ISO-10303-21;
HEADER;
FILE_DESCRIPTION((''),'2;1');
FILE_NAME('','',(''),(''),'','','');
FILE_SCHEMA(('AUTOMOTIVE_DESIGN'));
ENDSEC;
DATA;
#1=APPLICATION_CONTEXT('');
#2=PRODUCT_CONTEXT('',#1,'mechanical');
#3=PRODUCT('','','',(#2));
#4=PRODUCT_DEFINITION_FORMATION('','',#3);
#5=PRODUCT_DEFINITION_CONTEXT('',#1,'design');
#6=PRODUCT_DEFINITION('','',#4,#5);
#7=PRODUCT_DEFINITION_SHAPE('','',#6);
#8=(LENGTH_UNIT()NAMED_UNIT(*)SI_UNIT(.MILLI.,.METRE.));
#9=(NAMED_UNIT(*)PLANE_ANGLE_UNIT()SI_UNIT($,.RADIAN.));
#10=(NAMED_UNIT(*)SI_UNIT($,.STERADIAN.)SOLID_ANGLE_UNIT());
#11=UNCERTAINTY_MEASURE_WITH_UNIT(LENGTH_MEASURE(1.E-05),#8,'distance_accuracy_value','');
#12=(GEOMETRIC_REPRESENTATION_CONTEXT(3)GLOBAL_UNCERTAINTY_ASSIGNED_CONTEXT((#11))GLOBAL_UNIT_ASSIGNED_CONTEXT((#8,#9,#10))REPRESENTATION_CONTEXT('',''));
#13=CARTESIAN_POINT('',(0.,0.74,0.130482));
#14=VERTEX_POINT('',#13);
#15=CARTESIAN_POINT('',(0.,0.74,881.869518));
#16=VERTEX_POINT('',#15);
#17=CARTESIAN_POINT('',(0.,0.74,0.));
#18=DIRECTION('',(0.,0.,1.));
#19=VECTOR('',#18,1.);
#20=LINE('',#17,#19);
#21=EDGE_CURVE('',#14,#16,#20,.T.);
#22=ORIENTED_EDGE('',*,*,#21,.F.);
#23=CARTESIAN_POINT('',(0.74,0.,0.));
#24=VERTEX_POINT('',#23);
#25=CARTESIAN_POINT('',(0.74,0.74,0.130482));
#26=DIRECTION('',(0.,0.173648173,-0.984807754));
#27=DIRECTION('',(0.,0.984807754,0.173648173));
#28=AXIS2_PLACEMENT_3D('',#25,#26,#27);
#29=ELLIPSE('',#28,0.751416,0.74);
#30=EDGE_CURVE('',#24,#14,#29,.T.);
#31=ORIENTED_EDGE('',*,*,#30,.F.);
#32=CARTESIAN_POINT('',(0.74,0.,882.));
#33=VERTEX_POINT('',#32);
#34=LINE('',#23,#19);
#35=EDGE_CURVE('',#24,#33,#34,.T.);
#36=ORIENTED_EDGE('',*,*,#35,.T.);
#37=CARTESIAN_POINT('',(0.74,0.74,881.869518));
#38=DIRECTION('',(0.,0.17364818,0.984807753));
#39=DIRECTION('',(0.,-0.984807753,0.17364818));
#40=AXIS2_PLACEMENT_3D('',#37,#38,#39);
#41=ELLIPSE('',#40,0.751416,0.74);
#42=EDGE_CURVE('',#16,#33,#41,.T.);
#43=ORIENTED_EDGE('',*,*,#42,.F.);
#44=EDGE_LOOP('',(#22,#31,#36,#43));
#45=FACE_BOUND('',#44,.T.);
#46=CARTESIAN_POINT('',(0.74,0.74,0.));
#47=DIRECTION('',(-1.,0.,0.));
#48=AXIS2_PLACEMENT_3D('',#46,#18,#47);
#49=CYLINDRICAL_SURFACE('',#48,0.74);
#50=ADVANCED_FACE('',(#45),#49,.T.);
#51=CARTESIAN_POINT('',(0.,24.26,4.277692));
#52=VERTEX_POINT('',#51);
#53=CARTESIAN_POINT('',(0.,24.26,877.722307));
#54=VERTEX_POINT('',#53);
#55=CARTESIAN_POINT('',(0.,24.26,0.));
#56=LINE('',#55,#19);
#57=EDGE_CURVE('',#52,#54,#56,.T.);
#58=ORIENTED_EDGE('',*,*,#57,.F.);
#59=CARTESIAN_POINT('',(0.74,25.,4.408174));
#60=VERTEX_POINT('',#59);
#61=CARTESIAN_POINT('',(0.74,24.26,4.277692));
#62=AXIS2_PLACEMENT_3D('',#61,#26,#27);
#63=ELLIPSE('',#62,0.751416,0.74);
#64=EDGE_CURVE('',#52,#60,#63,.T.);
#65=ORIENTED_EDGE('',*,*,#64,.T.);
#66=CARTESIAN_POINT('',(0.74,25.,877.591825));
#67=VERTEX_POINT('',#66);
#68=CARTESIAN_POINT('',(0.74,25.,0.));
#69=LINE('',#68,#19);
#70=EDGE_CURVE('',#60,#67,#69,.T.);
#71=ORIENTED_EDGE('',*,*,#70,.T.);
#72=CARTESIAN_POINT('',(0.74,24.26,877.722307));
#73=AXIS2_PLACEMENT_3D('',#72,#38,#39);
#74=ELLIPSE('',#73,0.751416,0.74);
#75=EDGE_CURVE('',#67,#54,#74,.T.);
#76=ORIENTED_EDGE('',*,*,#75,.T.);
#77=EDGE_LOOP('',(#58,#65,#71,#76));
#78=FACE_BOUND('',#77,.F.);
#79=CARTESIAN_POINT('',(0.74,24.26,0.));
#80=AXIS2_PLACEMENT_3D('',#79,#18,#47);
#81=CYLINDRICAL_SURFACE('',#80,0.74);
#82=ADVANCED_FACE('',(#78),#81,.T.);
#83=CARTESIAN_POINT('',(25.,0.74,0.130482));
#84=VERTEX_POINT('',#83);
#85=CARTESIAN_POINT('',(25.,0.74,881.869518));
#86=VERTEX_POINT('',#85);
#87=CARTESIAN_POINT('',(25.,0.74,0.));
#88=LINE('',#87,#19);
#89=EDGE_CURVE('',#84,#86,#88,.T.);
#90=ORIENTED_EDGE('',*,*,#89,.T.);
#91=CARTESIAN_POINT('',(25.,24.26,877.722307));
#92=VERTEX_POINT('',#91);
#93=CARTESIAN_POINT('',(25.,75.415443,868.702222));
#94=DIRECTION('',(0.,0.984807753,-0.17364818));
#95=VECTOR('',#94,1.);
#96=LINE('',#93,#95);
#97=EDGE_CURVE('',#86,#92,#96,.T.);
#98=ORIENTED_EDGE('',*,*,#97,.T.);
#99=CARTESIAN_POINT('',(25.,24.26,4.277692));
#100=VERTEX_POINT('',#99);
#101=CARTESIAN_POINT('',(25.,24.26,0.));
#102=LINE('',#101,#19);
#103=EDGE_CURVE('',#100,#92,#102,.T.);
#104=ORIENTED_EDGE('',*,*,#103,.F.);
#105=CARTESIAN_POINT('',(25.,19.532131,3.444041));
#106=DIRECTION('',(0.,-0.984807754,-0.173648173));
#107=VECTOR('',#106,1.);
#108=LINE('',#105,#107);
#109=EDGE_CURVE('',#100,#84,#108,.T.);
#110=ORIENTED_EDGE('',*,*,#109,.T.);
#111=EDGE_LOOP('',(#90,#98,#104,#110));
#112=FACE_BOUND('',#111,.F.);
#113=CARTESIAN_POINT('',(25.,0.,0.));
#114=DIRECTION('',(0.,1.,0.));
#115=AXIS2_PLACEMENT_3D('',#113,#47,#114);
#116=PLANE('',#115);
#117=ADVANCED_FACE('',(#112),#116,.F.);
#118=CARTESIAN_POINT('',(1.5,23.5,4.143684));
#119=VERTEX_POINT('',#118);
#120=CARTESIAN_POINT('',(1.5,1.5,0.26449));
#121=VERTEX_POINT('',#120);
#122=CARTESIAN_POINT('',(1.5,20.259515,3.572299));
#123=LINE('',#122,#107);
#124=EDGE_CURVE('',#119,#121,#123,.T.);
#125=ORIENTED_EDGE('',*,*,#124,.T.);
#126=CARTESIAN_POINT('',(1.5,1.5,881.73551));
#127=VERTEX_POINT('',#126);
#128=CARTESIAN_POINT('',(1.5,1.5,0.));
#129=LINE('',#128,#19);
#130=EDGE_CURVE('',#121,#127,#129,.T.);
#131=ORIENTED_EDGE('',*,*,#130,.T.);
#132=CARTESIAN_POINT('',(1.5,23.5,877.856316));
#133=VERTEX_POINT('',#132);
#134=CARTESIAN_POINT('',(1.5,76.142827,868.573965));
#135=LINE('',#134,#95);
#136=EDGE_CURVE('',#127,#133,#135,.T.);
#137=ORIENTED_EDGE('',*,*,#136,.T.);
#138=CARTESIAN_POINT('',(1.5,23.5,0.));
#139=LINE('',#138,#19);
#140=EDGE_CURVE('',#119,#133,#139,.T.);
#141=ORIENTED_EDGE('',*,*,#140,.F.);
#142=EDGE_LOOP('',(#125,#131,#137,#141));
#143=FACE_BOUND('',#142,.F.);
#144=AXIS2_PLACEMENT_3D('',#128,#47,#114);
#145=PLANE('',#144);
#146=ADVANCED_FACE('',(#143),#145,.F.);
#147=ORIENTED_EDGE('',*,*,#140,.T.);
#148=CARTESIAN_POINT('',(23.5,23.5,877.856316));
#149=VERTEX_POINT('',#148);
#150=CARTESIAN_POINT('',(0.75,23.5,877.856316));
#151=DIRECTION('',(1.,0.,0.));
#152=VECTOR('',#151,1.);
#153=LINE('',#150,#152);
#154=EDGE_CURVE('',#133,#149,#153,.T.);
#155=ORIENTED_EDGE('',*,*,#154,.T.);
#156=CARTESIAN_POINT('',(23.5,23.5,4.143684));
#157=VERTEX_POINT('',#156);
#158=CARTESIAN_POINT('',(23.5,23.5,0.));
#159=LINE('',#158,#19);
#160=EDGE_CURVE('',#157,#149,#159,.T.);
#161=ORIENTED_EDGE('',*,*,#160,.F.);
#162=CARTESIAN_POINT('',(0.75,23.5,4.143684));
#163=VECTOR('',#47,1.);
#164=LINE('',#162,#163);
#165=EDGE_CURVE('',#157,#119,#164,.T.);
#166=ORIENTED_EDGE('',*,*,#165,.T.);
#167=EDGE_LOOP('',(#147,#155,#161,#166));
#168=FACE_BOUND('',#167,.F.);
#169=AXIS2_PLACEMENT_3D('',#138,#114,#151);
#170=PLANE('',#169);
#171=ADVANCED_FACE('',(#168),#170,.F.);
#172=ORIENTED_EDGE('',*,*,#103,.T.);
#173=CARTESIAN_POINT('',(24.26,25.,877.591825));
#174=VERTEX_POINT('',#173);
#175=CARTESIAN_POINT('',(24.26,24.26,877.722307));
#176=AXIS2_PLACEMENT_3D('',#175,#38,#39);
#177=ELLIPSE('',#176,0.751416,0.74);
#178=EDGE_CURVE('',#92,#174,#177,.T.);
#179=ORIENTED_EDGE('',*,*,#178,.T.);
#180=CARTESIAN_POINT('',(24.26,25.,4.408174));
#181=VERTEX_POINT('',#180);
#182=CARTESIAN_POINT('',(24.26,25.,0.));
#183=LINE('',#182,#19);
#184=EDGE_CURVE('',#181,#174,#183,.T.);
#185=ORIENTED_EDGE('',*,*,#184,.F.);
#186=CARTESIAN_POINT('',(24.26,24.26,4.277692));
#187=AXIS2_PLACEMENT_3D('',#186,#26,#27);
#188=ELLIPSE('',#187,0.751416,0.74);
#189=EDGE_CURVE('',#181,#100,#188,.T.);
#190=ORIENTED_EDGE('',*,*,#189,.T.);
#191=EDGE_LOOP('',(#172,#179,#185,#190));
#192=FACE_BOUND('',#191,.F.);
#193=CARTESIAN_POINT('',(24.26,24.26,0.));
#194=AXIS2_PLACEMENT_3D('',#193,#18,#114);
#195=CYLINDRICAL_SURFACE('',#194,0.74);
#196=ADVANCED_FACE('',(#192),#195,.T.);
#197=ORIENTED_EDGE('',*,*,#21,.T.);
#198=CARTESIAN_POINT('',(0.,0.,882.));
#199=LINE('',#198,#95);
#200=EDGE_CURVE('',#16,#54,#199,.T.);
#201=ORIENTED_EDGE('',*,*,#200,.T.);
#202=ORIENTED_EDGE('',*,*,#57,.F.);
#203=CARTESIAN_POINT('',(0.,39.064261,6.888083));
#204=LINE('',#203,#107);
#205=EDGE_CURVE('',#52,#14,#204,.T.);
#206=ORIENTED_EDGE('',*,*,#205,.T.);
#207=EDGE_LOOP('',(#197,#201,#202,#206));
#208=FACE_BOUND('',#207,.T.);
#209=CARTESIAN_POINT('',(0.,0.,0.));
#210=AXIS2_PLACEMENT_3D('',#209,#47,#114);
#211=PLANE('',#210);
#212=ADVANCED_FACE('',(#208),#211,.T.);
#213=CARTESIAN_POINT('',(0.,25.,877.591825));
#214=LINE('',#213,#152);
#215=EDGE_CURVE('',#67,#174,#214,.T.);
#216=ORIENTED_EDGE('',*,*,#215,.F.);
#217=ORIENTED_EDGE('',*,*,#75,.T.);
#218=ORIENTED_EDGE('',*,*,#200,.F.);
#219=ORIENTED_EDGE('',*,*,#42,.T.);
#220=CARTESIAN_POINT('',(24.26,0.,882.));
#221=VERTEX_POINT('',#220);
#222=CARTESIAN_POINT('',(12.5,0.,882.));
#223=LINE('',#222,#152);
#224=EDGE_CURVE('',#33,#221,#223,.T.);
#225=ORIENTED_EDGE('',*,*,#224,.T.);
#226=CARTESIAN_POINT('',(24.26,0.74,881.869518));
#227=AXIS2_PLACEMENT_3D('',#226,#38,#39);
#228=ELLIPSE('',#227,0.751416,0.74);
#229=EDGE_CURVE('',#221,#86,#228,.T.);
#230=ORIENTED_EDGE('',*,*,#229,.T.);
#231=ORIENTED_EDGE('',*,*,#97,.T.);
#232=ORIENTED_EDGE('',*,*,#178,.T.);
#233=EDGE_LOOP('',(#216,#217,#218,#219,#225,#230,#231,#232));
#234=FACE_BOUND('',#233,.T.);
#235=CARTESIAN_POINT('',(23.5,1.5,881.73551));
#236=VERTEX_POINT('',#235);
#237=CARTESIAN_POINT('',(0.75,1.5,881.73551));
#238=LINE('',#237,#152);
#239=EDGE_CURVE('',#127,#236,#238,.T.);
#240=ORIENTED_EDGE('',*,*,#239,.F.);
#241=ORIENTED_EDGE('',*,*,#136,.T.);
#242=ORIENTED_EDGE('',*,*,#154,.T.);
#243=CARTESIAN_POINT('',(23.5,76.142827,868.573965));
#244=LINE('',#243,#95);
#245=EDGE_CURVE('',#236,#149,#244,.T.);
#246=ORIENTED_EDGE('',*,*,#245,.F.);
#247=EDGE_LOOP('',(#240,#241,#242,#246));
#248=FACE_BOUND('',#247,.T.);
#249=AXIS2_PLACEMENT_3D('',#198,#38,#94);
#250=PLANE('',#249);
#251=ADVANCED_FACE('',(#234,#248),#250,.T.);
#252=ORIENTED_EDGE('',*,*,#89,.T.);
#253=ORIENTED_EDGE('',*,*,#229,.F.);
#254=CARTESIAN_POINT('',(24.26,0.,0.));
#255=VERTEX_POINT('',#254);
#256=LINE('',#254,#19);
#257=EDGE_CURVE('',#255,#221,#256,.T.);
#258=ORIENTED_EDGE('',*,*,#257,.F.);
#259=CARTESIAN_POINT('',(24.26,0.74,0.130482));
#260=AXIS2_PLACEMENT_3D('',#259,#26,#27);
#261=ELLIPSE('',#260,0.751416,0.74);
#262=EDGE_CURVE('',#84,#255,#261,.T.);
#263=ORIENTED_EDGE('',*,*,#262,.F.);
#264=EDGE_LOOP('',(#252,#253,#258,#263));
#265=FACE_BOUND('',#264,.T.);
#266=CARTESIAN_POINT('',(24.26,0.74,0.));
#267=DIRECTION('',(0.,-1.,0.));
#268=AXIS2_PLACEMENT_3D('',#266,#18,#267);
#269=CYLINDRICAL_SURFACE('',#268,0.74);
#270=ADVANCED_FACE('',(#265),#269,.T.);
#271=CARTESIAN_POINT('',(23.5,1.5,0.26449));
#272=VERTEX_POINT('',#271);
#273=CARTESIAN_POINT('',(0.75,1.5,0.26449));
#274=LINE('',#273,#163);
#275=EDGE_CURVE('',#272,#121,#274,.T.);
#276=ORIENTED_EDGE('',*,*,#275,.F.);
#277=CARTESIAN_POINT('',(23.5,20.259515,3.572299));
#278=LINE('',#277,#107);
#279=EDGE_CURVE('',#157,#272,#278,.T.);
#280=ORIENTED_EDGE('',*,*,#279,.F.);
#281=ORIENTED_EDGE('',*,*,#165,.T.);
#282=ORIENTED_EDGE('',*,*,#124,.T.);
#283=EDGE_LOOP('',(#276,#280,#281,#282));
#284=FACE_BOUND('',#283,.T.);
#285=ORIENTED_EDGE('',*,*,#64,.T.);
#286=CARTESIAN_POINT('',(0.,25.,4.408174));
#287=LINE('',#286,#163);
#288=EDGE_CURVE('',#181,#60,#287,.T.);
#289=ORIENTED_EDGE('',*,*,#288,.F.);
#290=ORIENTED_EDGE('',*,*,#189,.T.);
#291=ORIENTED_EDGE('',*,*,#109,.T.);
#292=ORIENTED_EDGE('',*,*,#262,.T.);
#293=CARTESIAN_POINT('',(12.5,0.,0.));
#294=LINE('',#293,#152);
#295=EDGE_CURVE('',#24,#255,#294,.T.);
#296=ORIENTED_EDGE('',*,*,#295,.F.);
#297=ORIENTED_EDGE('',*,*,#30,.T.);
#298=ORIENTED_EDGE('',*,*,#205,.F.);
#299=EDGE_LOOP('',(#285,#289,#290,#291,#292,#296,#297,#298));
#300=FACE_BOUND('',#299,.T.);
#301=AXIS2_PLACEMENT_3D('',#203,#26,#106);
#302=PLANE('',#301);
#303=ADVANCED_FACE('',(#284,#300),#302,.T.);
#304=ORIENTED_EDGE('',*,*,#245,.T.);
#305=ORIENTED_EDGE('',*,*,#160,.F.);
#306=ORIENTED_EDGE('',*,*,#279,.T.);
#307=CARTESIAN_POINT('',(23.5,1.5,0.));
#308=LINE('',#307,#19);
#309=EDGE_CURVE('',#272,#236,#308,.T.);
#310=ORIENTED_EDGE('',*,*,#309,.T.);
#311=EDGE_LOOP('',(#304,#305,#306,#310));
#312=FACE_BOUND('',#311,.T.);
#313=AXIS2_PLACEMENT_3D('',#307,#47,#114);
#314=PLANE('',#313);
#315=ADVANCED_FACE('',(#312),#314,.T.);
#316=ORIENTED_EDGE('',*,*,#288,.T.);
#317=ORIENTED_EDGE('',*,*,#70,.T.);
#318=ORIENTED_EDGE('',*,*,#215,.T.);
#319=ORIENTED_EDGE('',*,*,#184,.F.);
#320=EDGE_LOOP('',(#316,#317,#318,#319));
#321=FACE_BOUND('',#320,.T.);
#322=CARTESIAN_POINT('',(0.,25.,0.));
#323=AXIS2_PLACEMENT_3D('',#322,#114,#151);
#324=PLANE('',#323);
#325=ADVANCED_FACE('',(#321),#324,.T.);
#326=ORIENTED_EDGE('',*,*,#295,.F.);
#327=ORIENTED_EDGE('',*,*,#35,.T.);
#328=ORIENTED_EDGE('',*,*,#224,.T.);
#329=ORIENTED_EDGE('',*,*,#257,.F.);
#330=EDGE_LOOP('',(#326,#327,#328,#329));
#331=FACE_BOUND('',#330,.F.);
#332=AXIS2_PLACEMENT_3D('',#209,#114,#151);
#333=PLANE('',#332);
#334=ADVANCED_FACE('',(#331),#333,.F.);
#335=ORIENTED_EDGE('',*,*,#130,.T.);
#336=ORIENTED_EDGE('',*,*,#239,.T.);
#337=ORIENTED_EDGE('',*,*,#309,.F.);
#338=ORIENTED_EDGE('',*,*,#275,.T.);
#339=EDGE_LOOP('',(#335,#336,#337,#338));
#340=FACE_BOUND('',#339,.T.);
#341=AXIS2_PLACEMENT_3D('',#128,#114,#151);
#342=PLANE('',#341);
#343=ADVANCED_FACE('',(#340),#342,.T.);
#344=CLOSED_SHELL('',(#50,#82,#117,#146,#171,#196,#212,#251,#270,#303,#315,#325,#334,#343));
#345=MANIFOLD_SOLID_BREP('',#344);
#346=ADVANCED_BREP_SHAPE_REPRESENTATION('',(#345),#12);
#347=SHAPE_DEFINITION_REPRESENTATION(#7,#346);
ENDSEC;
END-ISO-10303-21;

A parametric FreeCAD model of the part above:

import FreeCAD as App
import Part
import Sketcher

V = App.Vector
Q = App.Units.Quantity


def edges_at(feature, points):
    """Names of the edges that pass closest to the given points."""
    edges = feature.Shape.Edges
    near = lambda p: min(range(len(edges)), key=lambda i: edges[i].distToShape(Part.Vertex(*p))[0])
    return sorted({f"Edge{near(p) + 1}" for p in points})


def add_polygon(sketch, points):
    """Adds a closed chain of lines whose ends are joined by coincident constraints."""
    first, n = sketch.GeometryCount, len(points)
    for a, b in zip(points, points[1:] + points[:1]):
        sketch.addGeometry(Part.LineSegment(App.Vector(*a, 0), App.Vector(*b, 0)), False)
    for i in range(n):
        sketch.addConstraint(Sketcher.Constraint("Coincident", first + i, 2, first + (i + 1) % n, 1))

doc = App.newDocument("Part")
body = doc.addObject("PartDesign::Body", "Body")

# Sketch on XY plane
sketch1 = body.newObject("Sketcher::SketchObject", "Sketch")
sketch1.AttachmentSupport = (doc.getObject("XY_Plane"), [""])
sketch1.MapMode = "FlatFace"
add_polygon(sketch1, [(0, 25), (0, 0), (25, 0), (25, 25)])  # lines 0-3
add_polygon(sketch1, [(23.5, 1.5), (1.5, 1.5), (1.5, 23.5), (23.5, 23.5)])  # lines 4-7
sketch1.addConstraint([
    Sketcher.Constraint("Vertical", 0),
    Sketcher.Constraint("Horizontal", 1),
    Sketcher.Constraint("Vertical", 2),
    Sketcher.Constraint("Horizontal", 3),
    Sketcher.Constraint("Horizontal", 4),
    Sketcher.Constraint("Vertical", 5),
    Sketcher.Constraint("Horizontal", 6),
    Sketcher.Constraint("Vertical", 7),
    Sketcher.Constraint("Coincident", 0, 2, -1, 1),
    Sketcher.Constraint("Equal", 3, 0),
    Sketcher.Constraint("Equal", 6, 5),
    Sketcher.Constraint("DistanceX", 1, 1, 1, 2, 25.0),
    Sketcher.Constraint("DistanceX", 4, 2, 4, 1, 22.0),
    Sketcher.Constraint("DistanceX", -1, 1, 4, 2, 1.5),
    Sketcher.Constraint("DistanceY", -1, 1, 4, 2, 1.5),
])
pad1 = body.newObject("PartDesign::Pad", "Pad")
pad1.Profile = sketch1
pad1.Length = 882
doc.recompute()

fillet = body.newObject("PartDesign::Fillet", "Fillet")
fillet.Base = (pad1, edges_at(pad1, [
    (25, 0, 441),
    (0, 0, 441),
    (25, 25, 441),
    (0, 25, 441),
]))
fillet.Radius = 0.74

# Sketch on YZ plane
sketch2 = body.newObject("Sketcher::SketchObject", "Sketch001")
sketch2.AttachmentSupport = (doc.getObject("YZ_Plane"), [""])
sketch2.MapMode = "FlatFace"
add_polygon(sketch2, [(46.854502, 873.738287), (0, 882), (48.019741, 909.975952)])  # lines 0-2
add_polygon(sketch2, [(35.255848, -14.284037), (0, 0), (39.064261, 6.888083)])  # lines 3-5
sketch2.addConstraint([
    Sketcher.Constraint("Coincident", 3, 2, -1, 1),
    Sketcher.Constraint("PointOnObject", 0, 2, -2),
    Sketcher.Constraint("Angle", 0, Q("170 deg")),
    Sketcher.Constraint("Angle", 4, Q("10 deg")),
    Sketcher.Constraint("DistanceY", -1, 1, 0, 2, 882.0),
    Sketcher.Constraint("DistanceX", -1, 1, 2, 2, 46.854502),
    Sketcher.Constraint("Distance", 1, 55.574719),
    Sketcher.Constraint("Distance", 4, 39.66689),
    Sketcher.Constraint("Distance", 5, 21.511919),
    Sketcher.Constraint("DistanceX", -1, 1, 1, 2, 48.019741),
    Sketcher.Constraint("DistanceY", 5, 2, 4, 2, 21.17212),
])
pocket1 = body.newObject("PartDesign::Pocket", "Pocket")
pocket1.Profile = sketch2
pocket1.Type = "ThroughAll"
pocket1.Reversed = True

doc.recompute()
